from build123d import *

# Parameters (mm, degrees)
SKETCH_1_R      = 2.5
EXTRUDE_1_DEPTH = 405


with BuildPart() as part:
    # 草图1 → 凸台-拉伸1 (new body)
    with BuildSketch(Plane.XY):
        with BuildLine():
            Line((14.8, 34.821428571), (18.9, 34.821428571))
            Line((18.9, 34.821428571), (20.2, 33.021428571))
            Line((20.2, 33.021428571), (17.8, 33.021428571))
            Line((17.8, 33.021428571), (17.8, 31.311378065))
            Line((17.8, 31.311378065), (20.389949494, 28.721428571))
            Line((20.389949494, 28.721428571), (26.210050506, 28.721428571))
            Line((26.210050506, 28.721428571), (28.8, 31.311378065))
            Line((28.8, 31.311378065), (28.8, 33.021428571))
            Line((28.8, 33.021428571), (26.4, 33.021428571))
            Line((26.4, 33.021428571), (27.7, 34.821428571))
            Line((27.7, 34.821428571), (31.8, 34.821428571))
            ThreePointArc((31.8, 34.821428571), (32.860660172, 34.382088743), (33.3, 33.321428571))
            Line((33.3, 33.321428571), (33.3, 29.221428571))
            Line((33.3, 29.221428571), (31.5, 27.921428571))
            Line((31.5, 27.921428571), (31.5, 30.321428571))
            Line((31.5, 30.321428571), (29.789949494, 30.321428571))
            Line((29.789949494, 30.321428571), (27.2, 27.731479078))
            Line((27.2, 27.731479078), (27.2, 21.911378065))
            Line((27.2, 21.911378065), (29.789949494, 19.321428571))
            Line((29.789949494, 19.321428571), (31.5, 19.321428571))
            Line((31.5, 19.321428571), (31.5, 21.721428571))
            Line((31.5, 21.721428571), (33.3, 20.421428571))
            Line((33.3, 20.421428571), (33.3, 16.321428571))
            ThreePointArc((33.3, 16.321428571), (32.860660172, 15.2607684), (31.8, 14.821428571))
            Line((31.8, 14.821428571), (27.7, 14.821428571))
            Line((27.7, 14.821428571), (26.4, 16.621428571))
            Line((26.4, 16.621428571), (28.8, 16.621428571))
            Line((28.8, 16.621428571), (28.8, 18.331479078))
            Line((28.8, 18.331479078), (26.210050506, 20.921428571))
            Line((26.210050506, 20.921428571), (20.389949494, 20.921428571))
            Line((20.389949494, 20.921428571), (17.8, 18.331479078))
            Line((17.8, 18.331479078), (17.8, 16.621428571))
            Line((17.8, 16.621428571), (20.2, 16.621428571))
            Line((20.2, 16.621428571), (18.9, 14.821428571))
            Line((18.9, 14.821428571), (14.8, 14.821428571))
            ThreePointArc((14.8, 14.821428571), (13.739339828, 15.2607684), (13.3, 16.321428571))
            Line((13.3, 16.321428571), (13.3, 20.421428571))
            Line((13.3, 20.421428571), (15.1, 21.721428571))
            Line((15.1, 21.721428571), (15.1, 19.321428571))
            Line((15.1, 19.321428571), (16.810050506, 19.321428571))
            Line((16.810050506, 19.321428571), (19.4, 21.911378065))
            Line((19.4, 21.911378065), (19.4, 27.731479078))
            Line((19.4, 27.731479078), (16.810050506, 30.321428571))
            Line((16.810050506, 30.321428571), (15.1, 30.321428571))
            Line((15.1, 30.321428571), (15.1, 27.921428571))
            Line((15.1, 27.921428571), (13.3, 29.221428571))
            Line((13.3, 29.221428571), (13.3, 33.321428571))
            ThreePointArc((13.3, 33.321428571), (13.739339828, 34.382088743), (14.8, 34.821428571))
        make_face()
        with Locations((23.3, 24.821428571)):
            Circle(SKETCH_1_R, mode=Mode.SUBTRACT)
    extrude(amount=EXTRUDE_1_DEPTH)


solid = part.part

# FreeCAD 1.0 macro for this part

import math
import FreeCAD as App
import Part
import Sketcher
from FreeCAD import Vector
Q = App.Units.Quantity

doc = App.newDocument("Part")
body = doc.addObject("PartDesign::Body", "Body")

sketch1 = body.newObject("Sketcher::SketchObject", "Sketch")
sketch1.AttachmentSupport = (doc.getObject("XY_Plane"), [""])
sketch1.MapMode = "FlatFace"
sketch1.addGeometry(Part.LineSegment(Vector(18.9, 34.821429, 0), Vector(14.8, 34.821429, 0)), False)
sketch1.addGeometry(Part.ArcOfCircle(Part.Circle(Vector(14.8, 33.321429, 0), Vector(0, 0, 1), 1.5), math.radians(90), math.radians(180)), False)
sketch1.addGeometry(Part.LineSegment(Vector(13.3, 33.321429, 0), Vector(13.3, 29.221429, 0)), False)
sketch1.addGeometry(Part.LineSegment(Vector(13.3, 29.221429, 0), Vector(15.1, 27.921429, 0)), False)
sketch1.addGeometry(Part.LineSegment(Vector(15.1, 27.921429, 0), Vector(15.1, 30.321429, 0)), False)
sketch1.addGeometry(Part.LineSegment(Vector(15.1, 30.321429, 0), Vector(16.810051, 30.321429, 0)), False)
sketch1.addGeometry(Part.LineSegment(Vector(16.810051, 30.321429, 0), Vector(19.4, 27.731479, 0)), False)
sketch1.addGeometry(Part.LineSegment(Vector(19.4, 27.731479, 0), Vector(19.4, 21.911378, 0)), False)
sketch1.addGeometry(Part.LineSegment(Vector(19.4, 21.911378, 0), Vector(16.810051, 19.321429, 0)), False)
sketch1.addGeometry(Part.LineSegment(Vector(16.810051, 19.321429, 0), Vector(15.1, 19.321429, 0)), False)
sketch1.addGeometry(Part.LineSegment(Vector(15.1, 19.321429, 0), Vector(15.1, 21.721429, 0)), False)
sketch1.addGeometry(Part.LineSegment(Vector(15.1, 21.721429, 0), Vector(13.3, 20.421429, 0)), False)
sketch1.addGeometry(Part.LineSegment(Vector(13.3, 20.421429, 0), Vector(13.3, 16.321429, 0)), False)
sketch1.addGeometry(Part.ArcOfCircle(Part.Circle(Vector(14.8, 16.321429, 0), Vector(0, 0, 1), 1.5), math.radians(-180), math.radians(-90)), False)
sketch1.addGeometry(Part.LineSegment(Vector(14.8, 14.821429, 0), Vector(18.9, 14.821429, 0)), False)
sketch1.addGeometry(Part.LineSegment(Vector(18.9, 14.821429, 0), Vector(20.2, 16.621429, 0)), False)
sketch1.addGeometry(Part.LineSegment(Vector(20.2, 16.621429, 0), Vector(17.8, 16.621429, 0)), False)
sketch1.addGeometry(Part.LineSegment(Vector(17.8, 16.621429, 0), Vector(17.8, 18.331479, 0)), False)
sketch1.addGeometry(Part.LineSegment(Vector(17.8, 18.331479, 0), Vector(20.389949, 20.921429, 0)), False)
sketch1.addGeometry(Part.LineSegment(Vector(20.389949, 20.921429, 0), Vector(26.210051, 20.921429, 0)), False)
sketch1.addGeometry(Part.LineSegment(Vector(26.210051, 20.921429, 0), Vector(28.8, 18.331479, 0)), False)
sketch1.addGeometry(Part.LineSegment(Vector(28.8, 18.331479, 0), Vector(28.8, 16.621429, 0)), False)
sketch1.addGeometry(Part.LineSegment(Vector(28.8, 16.621429, 0), Vector(26.4, 16.621429, 0)), False)
sketch1.addGeometry(Part.LineSegment(Vector(26.4, 16.621429, 0), Vector(27.7, 14.821429, 0)), False)
sketch1.addGeometry(Part.LineSegment(Vector(27.7, 14.821429, 0), Vector(31.8, 14.821429, 0)), False)
sketch1.addGeometry(Part.ArcOfCircle(Part.Circle(Vector(31.8, 16.321429, 0), Vector(0, 0, 1), 1.5), math.radians(-90), math.radians(0)), False)
sketch1.addGeometry(Part.LineSegment(Vector(33.3, 16.321429, 0), Vector(33.3, 20.421429, 0)), False)
sketch1.addGeometry(Part.LineSegment(Vector(33.3, 20.421429, 0), Vector(31.5, 21.721429, 0)), False)
sketch1.addGeometry(Part.LineSegment(Vector(31.5, 21.721429, 0), Vector(31.5, 19.321429, 0)), False)
sketch1.addGeometry(Part.LineSegment(Vector(31.5, 19.321429, 0), Vector(29.789949, 19.321429, 0)), False)
sketch1.addGeometry(Part.LineSegment(Vector(29.789949, 19.321429, 0), Vector(27.2, 21.911378, 0)), False)
sketch1.addGeometry(Part.LineSegment(Vector(27.2, 21.911378, 0), Vector(27.2, 27.731479, 0)), False)
sketch1.addGeometry(Part.LineSegment(Vector(27.2, 27.731479, 0), Vector(29.789949, 30.321429, 0)), False)
sketch1.addGeometry(Part.LineSegment(Vector(29.789949, 30.321429, 0), Vector(31.5, 30.321429, 0)), False)
sketch1.addGeometry(Part.LineSegment(Vector(31.5, 30.321429, 0), Vector(31.5, 27.921429, 0)), False)
sketch1.addGeometry(Part.LineSegment(Vector(31.5, 27.921429, 0), Vector(33.3, 29.221429, 0)), False)
sketch1.addGeometry(Part.LineSegment(Vector(33.3, 29.221429, 0), Vector(33.3, 33.321429, 0)), False)
sketch1.addGeometry(Part.ArcOfCircle(Part.Circle(Vector(31.8, 33.321429, 0), Vector(0, 0, 1), 1.5), math.radians(0), math.radians(90)), False)
sketch1.addGeometry(Part.LineSegment(Vector(31.8, 34.821429, 0), Vector(27.7, 34.821429, 0)), False)
sketch1.addGeometry(Part.LineSegment(Vector(27.7, 34.821429, 0), Vector(26.4, 33.021429, 0)), False)
sketch1.addGeometry(Part.LineSegment(Vector(26.4, 33.021429, 0), Vector(28.8, 33.021429, 0)), False)
sketch1.addGeometry(Part.LineSegment(Vector(28.8, 33.021429, 0), Vector(28.8, 31.311378, 0)), False)
sketch1.addGeometry(Part.LineSegment(Vector(28.8, 31.311378, 0), Vector(26.210051, 28.721429, 0)), False)
sketch1.addGeometry(Part.LineSegment(Vector(26.210051, 28.721429, 0), Vector(20.389949, 28.721429, 0)), False)
sketch1.addGeometry(Part.LineSegment(Vector(20.389949, 28.721429, 0), Vector(17.8, 31.311378, 0)), False)
sketch1.addGeometry(Part.LineSegment(Vector(17.8, 31.311378, 0), Vector(17.8, 33.021429, 0)), False)
sketch1.addGeometry(Part.LineSegment(Vector(17.8, 33.021429, 0), Vector(20.2, 33.021429, 0)), False)
sketch1.addGeometry(Part.LineSegment(Vector(20.2, 33.021429, 0), Vector(18.9, 34.821429, 0)), False)
sketch1.addGeometry(Part.Circle(Vector(23.3, 24.821429, 0), Vector(0, 0, 1), 2.5), False)
sketch1.addConstraint(Sketcher.Constraint("Tangent", 0, 2, 1, 1))
sketch1.addConstraint(Sketcher.Constraint("Tangent", 1, 2, 2, 1))
sketch1.addConstraint(Sketcher.Constraint("Coincident", 2, 2, 3, 1))
sketch1.addConstraint(Sketcher.Constraint("Coincident", 3, 2, 4, 1))
sketch1.addConstraint(Sketcher.Constraint("Coincident", 4, 2, 5, 1))
sketch1.addConstraint(Sketcher.Constraint("Coincident", 5, 2, 6, 1))
sketch1.addConstraint(Sketcher.Constraint("Coincident", 6, 2, 7, 1))
sketch1.addConstraint(Sketcher.Constraint("Coincident", 7, 2, 8, 1))
sketch1.addConstraint(Sketcher.Constraint("Coincident", 8, 2, 9, 1))
sketch1.addConstraint(Sketcher.Constraint("Coincident", 9, 2, 10, 1))
sketch1.addConstraint(Sketcher.Constraint("Coincident", 10, 2, 11, 1))
sketch1.addConstraint(Sketcher.Constraint("Coincident", 11, 2, 12, 1))
sketch1.addConstraint(Sketcher.Constraint("Tangent", 12, 2, 13, 1))
sketch1.addConstraint(Sketcher.Constraint("Tangent", 13, 2, 14, 1))
sketch1.addConstraint(Sketcher.Constraint("Coincident", 14, 2, 15, 1))
sketch1.addConstraint(Sketcher.Constraint("Coincident", 15, 2, 16, 1))
sketch1.addConstraint(Sketcher.Constraint("Coincident", 16, 2, 17, 1))
sketch1.addConstraint(Sketcher.Constraint("Coincident", 17, 2, 18, 1))
sketch1.addConstraint(Sketcher.Constraint("Coincident", 18, 2, 19, 1))
sketch1.addConstraint(Sketcher.Constraint("Coincident", 19, 2, 20, 1))
sketch1.addConstraint(Sketcher.Constraint("Coincident", 20, 2, 21, 1))
sketch1.addConstraint(Sketcher.Constraint("Coincident", 21, 2, 22, 1))
sketch1.addConstraint(Sketcher.Constraint("Coincident", 22, 2, 23, 1))
sketch1.addConstraint(Sketcher.Constraint("Coincident", 23, 2, 24, 1))
sketch1.addConstraint(Sketcher.Constraint("Tangent", 24, 2, 25, 1))
sketch1.addConstraint(Sketcher.Constraint("Tangent", 25, 2, 26, 1))
sketch1.addConstraint(Sketcher.Constraint("Coincident", 26, 2, 27, 1))
sketch1.addConstraint(Sketcher.Constraint("Coincident", 27, 2, 28, 1))
sketch1.addConstraint(Sketcher.Constraint("Coincident", 28, 2, 29, 1))
sketch1.addConstraint(Sketcher.Constraint("Coincident", 29, 2, 30, 1))
sketch1.addConstraint(Sketcher.Constraint("Coincident", 30, 2, 31, 1))
sketch1.addConstraint(Sketcher.Constraint("Coincident", 31, 2, 32, 1))
sketch1.addConstraint(Sketcher.Constraint("Coincident", 32, 2, 33, 1))
sketch1.addConstraint(Sketcher.Constraint("Coincident", 33, 2, 34, 1))
sketch1.addConstraint(Sketcher.Constraint("Coincident", 34, 2, 35, 1))
sketch1.addConstraint(Sketcher.Constraint("Coincident", 35, 2, 36, 1))
sketch1.addConstraint(Sketcher.Constraint("Tangent", 36, 2, 37, 1))
sketch1.addConstraint(Sketcher.Constraint("Tangent", 37, 2, 38, 1))
sketch1.addConstraint(Sketcher.Constraint("Coincident", 38, 2, 39, 1))
sketch1.addConstraint(Sketcher.Constraint("Coincident", 39, 2, 40, 1))
sketch1.addConstraint(Sketcher.Constraint("Coincident", 40, 2, 41, 1))
sketch1.addConstraint(Sketcher.Constraint("Coincident", 41, 2, 42, 1))
sketch1.addConstraint(Sketcher.Constraint("Coincident", 42, 2, 43, 1))
sketch1.addConstraint(Sketcher.Constraint("Coincident", 43, 2, 44, 1))
sketch1.addConstraint(Sketcher.Constraint("Coincident", 44, 2, 45, 1))
sketch1.addConstraint(Sketcher.Constraint("Coincident", 45, 2, 46, 1))
sketch1.addConstraint(Sketcher.Constraint("Coincident", 46, 2, 47, 1))
sketch1.addConstraint(Sketcher.Constraint("Coincident", 47, 2, 0, 1))
sketch1.addConstraint(Sketcher.Constraint("Horizontal", 0))
sketch1.addConstraint(Sketcher.Constraint("Vertical", 2))
sketch1.addConstraint(Sketcher.Constraint("Vertical", 4))
sketch1.addConstraint(Sketcher.Constraint("Horizontal", 5))
sketch1.addConstraint(Sketcher.Constraint("Vertical", 7))
sketch1.addConstraint(Sketcher.Constraint("Horizontal", 9))
sketch1.addConstraint(Sketcher.Constraint("Vertical", 10))
sketch1.addConstraint(Sketcher.Constraint("Vertical", 12))
sketch1.addConstraint(Sketcher.Constraint("Horizontal", 14))
sketch1.addConstraint(Sketcher.Constraint("Horizontal", 16))
sketch1.addConstraint(Sketcher.Constraint("Vertical", 17))
sketch1.addConstraint(Sketcher.Constraint("Horizontal", 19))
sketch1.addConstraint(Sketcher.Constraint("Vertical", 21))
sketch1.addConstraint(Sketcher.Constraint("Horizontal", 22))
sketch1.addConstraint(Sketcher.Constraint("Horizontal", 24))
sketch1.addConstraint(Sketcher.Constraint("Vertical", 26))
sketch1.addConstraint(Sketcher.Constraint("Vertical", 28))
sketch1.addConstraint(Sketcher.Constraint("Horizontal", 29))
sketch1.addConstraint(Sketcher.Constraint("Vertical", 31))
sketch1.addConstraint(Sketcher.Constraint("Horizontal", 33))
sketch1.addConstraint(Sketcher.Constraint("Vertical", 34))
sketch1.addConstraint(Sketcher.Constraint("Vertical", 36))
sketch1.addConstraint(Sketcher.Constraint("Horizontal", 38))
sketch1.addConstraint(Sketcher.Constraint("Horizontal", 40))
sketch1.addConstraint(Sketcher.Constraint("Vertical", 41))
sketch1.addConstraint(Sketcher.Constraint("Horizontal", 43))
sketch1.addConstraint(Sketcher.Constraint("Vertical", 45))
sketch1.addConstraint(Sketcher.Constraint("Horizontal", 46))
sketch1.addConstraint(Sketcher.Constraint("Equal", 1, 13))
sketch1.addConstraint(Sketcher.Constraint("Equal", 13, 25))
sketch1.addConstraint(Sketcher.Constraint("Equal", 25, 37))
sketch1.addConstraint(Sketcher.Constraint("Perpendicular", 6, 8))
sketch1.addConstraint(Sketcher.Constraint("Perpendicular", 3, 15))
sketch1.addConstraint(Sketcher.Constraint("Parallel", 8, 18))
sketch1.addConstraint(Sketcher.Constraint("Perpendicular", 18, 20))
sketch1.addConstraint(Sketcher.Constraint("Perpendicular", 11, 23))
sketch1.addConstraint(Sketcher.Constraint("Perpendicular", 15, 27))
sketch1.addConstraint(Sketcher.Constraint("Parallel", 20, 30))
sketch1.addConstraint(Sketcher.Constraint("Perpendicular", 30, 32))
sketch1.addConstraint(Sketcher.Constraint("Perpendicular", 23, 35))
sketch1.addConstraint(Sketcher.Constraint("Perpendicular", 27, 39))
sketch1.addConstraint(Sketcher.Constraint("Parallel", 32, 42))
sketch1.addConstraint(Sketcher.Constraint("Perpendicular", 42, 44))
sketch1.addConstraint(Sketcher.Constraint("Perpendicular", 35, 47))
sketch1.addConstraint(Sketcher.Constraint("Horizontal", 13, 3, 25, 3))
sketch1.addConstraint(Sketcher.Constraint("Horizontal", 1, 3, 37, 3))
sketch1.addConstraint(Sketcher.Constraint("Horizontal", 17, 2, 20, 2))
sketch1.addConstraint(Sketcher.Constraint("Horizontal", 16, 2, 21, 2))
sketch1.addConstraint(Sketcher.Constraint("Horizontal", 11, 2, 26, 2))
sketch1.addConstraint(Sketcher.Constraint("Horizontal", 10, 2, 27, 2))
sketch1.addConstraint(Sketcher.Constraint("Horizontal", 9, 2, 28, 2))
sketch1.addConstraint(Sketcher.Constraint("Horizontal", 7, 2, 30, 2))
sketch1.addConstraint(Sketcher.Constraint("Horizontal", 6, 2, 31, 2))
sketch1.addConstraint(Sketcher.Constraint("Horizontal", 5, 2, 32, 2))
sketch1.addConstraint(Sketcher.Constraint("Horizontal", 3, 2, 34, 2))
sketch1.addConstraint(Sketcher.Constraint("Horizontal", 2, 2, 35, 2))
sketch1.addConstraint(Sketcher.Constraint("Horizontal", 41, 2, 44, 2))
sketch1.addConstraint(Sketcher.Constraint("Horizontal", 40, 2, 45, 2))
sketch1.addConstraint(Sketcher.Constraint("Vertical", 1, 3, 13, 3))
sketch1.addConstraint(Sketcher.Constraint("Vertical", 25, 3, 37, 3))
sketch1.addConstraint(Sketcher.Constraint("Vertical", 5, 2, 8, 2))
sketch1.addConstraint(Sketcher.Constraint("Vertical", 4, 2, 9, 2))
sketch1.addConstraint(Sketcher.Constraint("Vertical", 29, 2, 32, 2))
sketch1.addConstraint(Sketcher.Constraint("Vertical", 28, 2, 33, 2))
sketch1.addConstraint(Sketcher.Constraint("Vertical", 23, 2, 38, 2))
sketch1.addConstraint(Sketcher.Constraint("Vertical", 22, 2, 39, 2))
sketch1.addConstraint(Sketcher.Constraint("Vertical", 21, 2, 40, 2))
sketch1.addConstraint(Sketcher.Constraint("Vertical", 19, 2, 42, 2))
sketch1.addConstraint(Sketcher.Constraint("Vertical", 18, 2, 43, 2))
sketch1.addConstraint(Sketcher.Constraint("Vertical", 15, 2, 46, 2))
sketch1.addConstraint(Sketcher.Constraint("Equal", 16, 22))
sketch1.addConstraint(Sketcher.Constraint("Equal", 14, 24))
sketch1.addConstraint(Sketcher.Constraint("Equal", 9, 29))
sketch1.addConstraint(Sketcher.Constraint("Equal", 38, 2))
sketch1.addConstraint(Sketcher.Constraint("Equal", 46, 4))
sketch1.addConstraint(Sketcher.Constraint("Equal", 43, 7))
sketch1.addConstraint(Sketcher.Constraint("Equal", 4, 10))
sketch1.addConstraint(Sketcher.Constraint("Equal", 2, 12))
sketch1.addConstraint(Sketcher.Constraint("Equal", 33, 17))
sketch1.addConstraint(Sketcher.Constraint("Equal", 21, 41))
sketch1.addConstraint(Sketcher.Constraint("Equal", 11, 15))
sketch1.addConstraint(Sketcher.Constraint("Equal", 8, 18))
sketch1.addConstraint(Sketcher.Constraint("Diameter", 48, Q("5 mm")))
sketch1.addConstraint(Sketcher.Constraint("Radius", 1, Q("1.5 mm")))
sketch1.addConstraint(Sketcher.Constraint("DistanceX", 0, 2, 0, 1, Q("4.1 mm")))
sketch1.addConstraint(Sketcher.Constraint("DistanceX", 16, 2, 16, 1, Q("2.4 mm")))
sketch1.addConstraint(Sketcher.Constraint("DistanceY", 13, 3, 1, 3, Q("17 mm")))
sketch1.addConstraint(Sketcher.Constraint("DistanceY", 48, 3, 0, 2, Q("10 mm")))
sketch1.addConstraint(Sketcher.Constraint("DistanceX", 1, 2, 48, 3, Q("10 mm")))
sketch1.addConstraint(Sketcher.Constraint("DistanceY", 4, 2, 1, 3, Q("3 mm")))
sketch1.addConstraint(Sketcher.Constraint("DistanceX", -1, 1, 1, 3, Q("14.8 mm")))
sketch1.addConstraint(Sketcher.Constraint("DistanceX", -1, 1, 3, 2, Q("15.1 mm")))
sketch1.addConstraint(Sketcher.Constraint("DistanceX", -1, 1, 6, 2, Q("19.4 mm")))
sketch1.addConstraint(Sketcher.Constraint("DistanceX", 19, 1, 19, 2, Q("5.820101 mm")))
sketch1.addConstraint(Sketcher.Constraint("DistanceY", -1, 1, 1, 3, Q("33.321429 mm")))
pad1 = body.newObject("PartDesign::Pad", "Pad")
pad1.Profile = sketch1
pad1.Length = 405

doc.recompute()
